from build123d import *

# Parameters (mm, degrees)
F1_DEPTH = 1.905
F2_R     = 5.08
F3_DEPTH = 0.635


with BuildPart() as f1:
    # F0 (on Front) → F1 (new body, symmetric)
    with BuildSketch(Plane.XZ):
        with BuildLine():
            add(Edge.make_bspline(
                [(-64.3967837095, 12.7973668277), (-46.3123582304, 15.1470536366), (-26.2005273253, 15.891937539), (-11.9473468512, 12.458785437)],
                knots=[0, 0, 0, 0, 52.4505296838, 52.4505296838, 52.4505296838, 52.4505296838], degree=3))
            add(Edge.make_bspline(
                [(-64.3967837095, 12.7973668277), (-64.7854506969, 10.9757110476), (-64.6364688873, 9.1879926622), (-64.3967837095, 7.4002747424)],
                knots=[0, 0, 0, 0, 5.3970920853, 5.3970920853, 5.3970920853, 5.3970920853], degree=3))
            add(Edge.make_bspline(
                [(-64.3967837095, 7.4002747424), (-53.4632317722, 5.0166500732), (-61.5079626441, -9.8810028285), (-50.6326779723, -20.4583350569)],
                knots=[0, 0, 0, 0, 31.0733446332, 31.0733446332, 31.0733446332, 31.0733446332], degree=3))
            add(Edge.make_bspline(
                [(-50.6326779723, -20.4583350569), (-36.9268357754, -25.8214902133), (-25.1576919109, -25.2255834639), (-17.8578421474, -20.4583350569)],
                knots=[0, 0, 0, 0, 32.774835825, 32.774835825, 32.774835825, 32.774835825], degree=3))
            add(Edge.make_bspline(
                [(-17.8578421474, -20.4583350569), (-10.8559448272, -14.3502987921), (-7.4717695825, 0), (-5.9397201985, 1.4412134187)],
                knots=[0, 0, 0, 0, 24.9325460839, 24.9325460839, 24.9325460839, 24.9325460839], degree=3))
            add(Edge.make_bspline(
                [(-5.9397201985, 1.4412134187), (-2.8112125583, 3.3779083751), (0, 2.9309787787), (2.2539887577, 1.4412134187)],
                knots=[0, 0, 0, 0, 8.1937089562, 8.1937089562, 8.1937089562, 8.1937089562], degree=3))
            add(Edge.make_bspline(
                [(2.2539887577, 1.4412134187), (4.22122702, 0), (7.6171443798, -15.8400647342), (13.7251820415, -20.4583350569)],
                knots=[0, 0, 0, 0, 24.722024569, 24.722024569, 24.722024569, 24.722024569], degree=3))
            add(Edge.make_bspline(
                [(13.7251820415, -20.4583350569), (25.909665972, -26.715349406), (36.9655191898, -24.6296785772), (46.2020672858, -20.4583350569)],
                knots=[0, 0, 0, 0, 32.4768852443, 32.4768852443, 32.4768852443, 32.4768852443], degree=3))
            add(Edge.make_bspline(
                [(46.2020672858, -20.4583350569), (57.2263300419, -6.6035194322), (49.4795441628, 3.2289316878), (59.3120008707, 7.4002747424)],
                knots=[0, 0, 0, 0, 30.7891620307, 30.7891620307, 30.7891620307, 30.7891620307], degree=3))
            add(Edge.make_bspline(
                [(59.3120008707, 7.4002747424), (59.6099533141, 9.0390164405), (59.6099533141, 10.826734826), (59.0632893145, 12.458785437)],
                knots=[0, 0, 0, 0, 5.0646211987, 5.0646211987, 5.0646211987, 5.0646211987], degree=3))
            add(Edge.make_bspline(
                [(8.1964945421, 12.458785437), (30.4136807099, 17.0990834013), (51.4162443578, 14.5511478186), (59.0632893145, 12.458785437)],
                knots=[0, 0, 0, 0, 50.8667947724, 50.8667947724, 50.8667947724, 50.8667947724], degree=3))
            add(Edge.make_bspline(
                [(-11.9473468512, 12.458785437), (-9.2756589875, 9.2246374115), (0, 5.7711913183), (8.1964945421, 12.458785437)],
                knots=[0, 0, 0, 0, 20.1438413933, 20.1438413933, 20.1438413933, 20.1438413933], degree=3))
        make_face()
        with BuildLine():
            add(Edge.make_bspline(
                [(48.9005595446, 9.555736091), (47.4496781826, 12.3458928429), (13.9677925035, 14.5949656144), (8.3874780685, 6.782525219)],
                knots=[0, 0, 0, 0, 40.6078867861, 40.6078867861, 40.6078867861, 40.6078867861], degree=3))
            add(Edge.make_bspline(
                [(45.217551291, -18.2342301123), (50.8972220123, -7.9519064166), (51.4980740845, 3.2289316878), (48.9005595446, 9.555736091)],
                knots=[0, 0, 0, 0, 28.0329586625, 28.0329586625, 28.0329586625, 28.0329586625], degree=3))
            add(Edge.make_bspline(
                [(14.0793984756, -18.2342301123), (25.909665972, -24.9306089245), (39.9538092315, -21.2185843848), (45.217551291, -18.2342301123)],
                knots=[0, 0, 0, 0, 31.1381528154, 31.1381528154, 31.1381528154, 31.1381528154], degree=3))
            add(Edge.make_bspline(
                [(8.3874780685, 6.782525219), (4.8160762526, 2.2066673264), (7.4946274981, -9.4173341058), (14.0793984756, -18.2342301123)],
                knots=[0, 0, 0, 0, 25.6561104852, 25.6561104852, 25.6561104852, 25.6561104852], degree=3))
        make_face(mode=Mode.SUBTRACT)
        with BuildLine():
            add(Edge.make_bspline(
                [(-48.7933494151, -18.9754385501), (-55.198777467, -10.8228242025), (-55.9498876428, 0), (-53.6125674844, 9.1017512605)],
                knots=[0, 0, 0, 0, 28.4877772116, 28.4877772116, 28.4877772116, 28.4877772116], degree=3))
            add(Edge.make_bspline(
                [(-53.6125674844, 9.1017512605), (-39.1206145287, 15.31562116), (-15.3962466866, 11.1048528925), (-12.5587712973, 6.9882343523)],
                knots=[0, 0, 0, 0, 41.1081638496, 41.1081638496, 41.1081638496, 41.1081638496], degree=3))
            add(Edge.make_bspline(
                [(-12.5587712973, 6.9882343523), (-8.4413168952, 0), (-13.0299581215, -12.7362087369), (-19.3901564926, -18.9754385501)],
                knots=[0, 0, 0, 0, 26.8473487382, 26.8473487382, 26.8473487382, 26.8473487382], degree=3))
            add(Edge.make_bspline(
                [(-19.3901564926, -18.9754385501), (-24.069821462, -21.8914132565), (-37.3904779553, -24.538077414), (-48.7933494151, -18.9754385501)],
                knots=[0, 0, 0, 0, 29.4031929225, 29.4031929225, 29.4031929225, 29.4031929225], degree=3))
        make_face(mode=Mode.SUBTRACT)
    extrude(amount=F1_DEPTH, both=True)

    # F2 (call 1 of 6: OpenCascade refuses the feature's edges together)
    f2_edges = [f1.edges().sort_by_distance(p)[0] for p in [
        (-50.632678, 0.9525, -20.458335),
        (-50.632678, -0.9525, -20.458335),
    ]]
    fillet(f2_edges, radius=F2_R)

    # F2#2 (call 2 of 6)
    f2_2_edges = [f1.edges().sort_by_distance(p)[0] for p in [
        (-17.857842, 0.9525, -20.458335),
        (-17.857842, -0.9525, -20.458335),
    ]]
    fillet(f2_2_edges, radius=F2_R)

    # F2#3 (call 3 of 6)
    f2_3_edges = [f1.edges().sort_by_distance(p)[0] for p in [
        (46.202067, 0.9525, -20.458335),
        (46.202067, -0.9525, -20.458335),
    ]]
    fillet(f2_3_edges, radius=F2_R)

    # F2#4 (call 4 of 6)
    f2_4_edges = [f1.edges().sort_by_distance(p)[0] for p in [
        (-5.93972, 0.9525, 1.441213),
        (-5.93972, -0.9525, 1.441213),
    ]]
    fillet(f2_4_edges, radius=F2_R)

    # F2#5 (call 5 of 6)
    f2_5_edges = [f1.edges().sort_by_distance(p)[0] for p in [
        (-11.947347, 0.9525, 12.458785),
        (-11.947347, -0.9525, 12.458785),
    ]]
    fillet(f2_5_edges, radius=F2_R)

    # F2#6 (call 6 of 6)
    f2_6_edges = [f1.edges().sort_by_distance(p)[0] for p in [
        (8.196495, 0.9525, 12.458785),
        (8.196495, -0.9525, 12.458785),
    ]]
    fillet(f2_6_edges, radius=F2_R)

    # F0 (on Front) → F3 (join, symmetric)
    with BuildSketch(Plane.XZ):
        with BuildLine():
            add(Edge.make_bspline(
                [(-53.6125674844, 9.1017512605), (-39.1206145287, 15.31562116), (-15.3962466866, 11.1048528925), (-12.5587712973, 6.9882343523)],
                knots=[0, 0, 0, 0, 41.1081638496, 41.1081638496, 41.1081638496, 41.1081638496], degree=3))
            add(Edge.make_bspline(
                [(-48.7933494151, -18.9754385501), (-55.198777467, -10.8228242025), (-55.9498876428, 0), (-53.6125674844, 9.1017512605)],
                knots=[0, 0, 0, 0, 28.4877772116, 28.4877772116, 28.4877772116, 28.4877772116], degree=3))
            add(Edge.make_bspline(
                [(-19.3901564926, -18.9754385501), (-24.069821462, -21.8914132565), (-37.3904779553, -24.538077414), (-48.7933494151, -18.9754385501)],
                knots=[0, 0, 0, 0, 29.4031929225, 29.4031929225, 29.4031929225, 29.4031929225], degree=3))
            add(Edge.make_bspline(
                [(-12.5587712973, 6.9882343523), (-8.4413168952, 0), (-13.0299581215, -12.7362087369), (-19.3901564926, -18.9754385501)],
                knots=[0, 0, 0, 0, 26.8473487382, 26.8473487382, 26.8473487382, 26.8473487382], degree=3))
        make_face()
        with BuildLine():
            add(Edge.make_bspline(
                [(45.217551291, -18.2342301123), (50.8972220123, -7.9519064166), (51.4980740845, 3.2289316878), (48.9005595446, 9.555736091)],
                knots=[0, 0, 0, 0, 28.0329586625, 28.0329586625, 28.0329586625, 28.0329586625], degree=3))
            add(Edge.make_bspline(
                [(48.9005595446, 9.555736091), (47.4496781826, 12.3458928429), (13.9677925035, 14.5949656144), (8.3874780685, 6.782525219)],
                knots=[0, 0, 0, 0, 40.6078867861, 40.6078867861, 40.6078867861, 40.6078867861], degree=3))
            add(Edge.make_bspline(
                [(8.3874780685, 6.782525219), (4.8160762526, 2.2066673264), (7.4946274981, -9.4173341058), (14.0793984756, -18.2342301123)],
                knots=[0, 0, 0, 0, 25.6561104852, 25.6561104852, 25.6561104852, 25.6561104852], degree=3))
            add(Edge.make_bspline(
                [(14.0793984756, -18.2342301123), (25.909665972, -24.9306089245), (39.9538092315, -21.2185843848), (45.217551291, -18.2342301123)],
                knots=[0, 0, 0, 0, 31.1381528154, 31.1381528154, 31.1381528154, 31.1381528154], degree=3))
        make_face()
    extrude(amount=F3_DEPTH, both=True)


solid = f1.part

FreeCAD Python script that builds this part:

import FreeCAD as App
import Part
import Sketcher
from FreeCAD import Vector
Q = App.Units.Quantity


def edges_at(feature, points):
    """Names of the edges that pass closest to the given points."""
    edges = feature.Shape.Edges
    near = lambda p: min(range(len(edges)), key=lambda i: edges[i].distToShape(Part.Vertex(*p))[0])
    return sorted({f"Edge{near(p) + 1}" for p in points})

doc = App.newDocument("Part")
body = doc.addObject("PartDesign::Body", "Body")

sketch1 = body.newObject("Sketcher::SketchObject", "Sketch")
sketch1.AttachmentSupport = (doc.getObject("XZ_Plane"), [""])
sketch1.MapMode = "FlatFace"
sketch1.addGeometry([
    Part.BSplineCurve([Vector(-64.396784, 12.797367, 0), Vector(-46.312358, 15.147054, 0), Vector(-26.200527, 15.891938, 0), Vector(-11.947347, 12.458785, 0)], [4, 4], [0, 52.450529684], False, 3, [1, 1, 1, 1], False),
    Part.BSplineCurve([Vector(-64.396784, 12.797367, 0), Vector(-64.785451, 10.975711, 0), Vector(-64.636469, 9.187993, 0), Vector(-64.396784, 7.400275, 0)], [4, 4], [0, 5.397092085], False, 3, [1, 1, 1, 1], False),
    Part.BSplineCurve([Vector(-64.396784, 7.400275, 0), Vector(-53.463232, 5.01665, 0), Vector(-61.507963, -9.881003, 0), Vector(-50.632678, -20.458335, 0)], [4, 4], [0, 31.073344633], False, 3, [1, 1, 1, 1], False),
    Part.BSplineCurve([Vector(-50.632678, -20.458335, 0), Vector(-36.926836, -25.82149, 0), Vector(-25.157692, -25.225583, 0), Vector(-17.857842, -20.458335, 0)], [4, 4], [0, 32.774835825], False, 3, [1, 1, 1, 1], False),
    Part.BSplineCurve([Vector(-17.857842, -20.458335, 0), Vector(-10.855945, -14.350299, 0), Vector(-7.47177, 0, 0), Vector(-5.93972, 1.441213, 0)], [4, 4], [0, 24.932546084], False, 3, [1, 1, 1, 1], False),
    Part.BSplineCurve([Vector(-5.93972, 1.441213, 0), Vector(-2.811213, 3.377908, 0), Vector(0, 2.930979, 0), Vector(2.253989, 1.441213, 0)], [4, 4], [0, 8.193708956], False, 3, [1, 1, 1, 1], False),
    Part.BSplineCurve([Vector(2.253989, 1.441213, 0), Vector(4.221227, 0, 0), Vector(7.617144, -15.840065, 0), Vector(13.725182, -20.458335, 0)], [4, 4], [0, 24.722024569], False, 3, [1, 1, 1, 1], False),
    Part.BSplineCurve([Vector(13.725182, -20.458335, 0), Vector(25.909666, -26.715349, 0), Vector(36.965519, -24.629679, 0), Vector(46.202067, -20.458335, 0)], [4, 4], [0, 32.476885244], False, 3, [1, 1, 1, 1], False),
    Part.BSplineCurve([Vector(46.202067, -20.458335, 0), Vector(57.22633, -6.603519, 0), Vector(49.479544, 3.228932, 0), Vector(59.312001, 7.400275, 0)], [4, 4], [0, 30.789162031], False, 3, [1, 1, 1, 1], False),
    Part.BSplineCurve([Vector(59.312001, 7.400275, 0), Vector(59.609953, 9.039016, 0), Vector(59.609953, 10.826735, 0), Vector(59.063289, 12.458785, 0)], [4, 4], [0, 5.064621199], False, 3, [1, 1, 1, 1], False),
    Part.BSplineCurve([Vector(8.196495, 12.458785, 0), Vector(30.413681, 17.099083, 0), Vector(51.416244, 14.551148, 0), Vector(59.063289, 12.458785, 0)], [4, 4], [0, 50.866794772], False, 3, [1, 1, 1, 1], False),
    Part.BSplineCurve([Vector(-11.947347, 12.458785, 0), Vector(-9.275659, 9.224637, 0), Vector(0, 5.771191, 0), Vector(8.196495, 12.458785, 0)], [4, 4], [0, 20.143841393], False, 3, [1, 1, 1, 1], False),
    Part.BSplineCurve([Vector(45.217551, -18.23423, 0), Vector(50.897222, -7.951906, 0), Vector(51.498074, 3.228932, 0), Vector(48.90056, 9.555736, 0)], [4, 4], [0, 28.032958663], False, 3, [1, 1, 1, 1], False),
    Part.BSplineCurve([Vector(14.079398, -18.23423, 0), Vector(25.909666, -24.930609, 0), Vector(39.953809, -21.218584, 0), Vector(45.217551, -18.23423, 0)], [4, 4], [0, 31.138152815], False, 3, [1, 1, 1, 1], False),
    Part.BSplineCurve([Vector(8.387478, 6.782525, 0), Vector(4.816076, 2.206667, 0), Vector(7.494627, -9.417334, 0), Vector(14.079398, -18.23423, 0)], [4, 4], [0, 25.656110485], False, 3, [1, 1, 1, 1], False),
    Part.BSplineCurve([Vector(48.90056, 9.555736, 0), Vector(47.449678, 12.345893, 0), Vector(13.967793, 14.594966, 0), Vector(8.387478, 6.782525, 0)], [4, 4], [0, 40.607886786], False, 3, [1, 1, 1, 1], False),
    Part.BSplineCurve([Vector(-48.793349, -18.975439, 0), Vector(-55.198777, -10.822824, 0), Vector(-55.949888, 0, 0), Vector(-53.612567, 9.101751, 0)], [4, 4], [0, 28.487777212], False, 3, [1, 1, 1, 1], False),
    Part.BSplineCurve([Vector(-53.612567, 9.101751, 0), Vector(-39.120615, 15.315621, 0), Vector(-15.396247, 11.104853, 0), Vector(-12.558771, 6.988234, 0)], [4, 4], [0, 41.10816385], False, 3, [1, 1, 1, 1], False),
    Part.BSplineCurve([Vector(-12.558771, 6.988234, 0), Vector(-8.441317, 0, 0), Vector(-13.029958, -12.736209, 0), Vector(-19.390156, -18.975439, 0)], [4, 4], [0, 26.847348738], False, 3, [1, 1, 1, 1], False),
    Part.BSplineCurve([Vector(-19.390156, -18.975439, 0), Vector(-24.069821, -21.891413, 0), Vector(-37.390478, -24.538077, 0), Vector(-48.793349, -18.975439, 0)], [4, 4], [0, 29.403192923], False, 3, [1, 1, 1, 1], False),
], False)
sketch1.addConstraint([
    Sketcher.Constraint("Block", 0),
    Sketcher.Constraint("Block", 1),
    Sketcher.Constraint("Block", 2),
    Sketcher.Constraint("Block", 3),
    Sketcher.Constraint("Block", 4),
    Sketcher.Constraint("Block", 5),
    Sketcher.Constraint("Block", 6),
    Sketcher.Constraint("Block", 7),
    Sketcher.Constraint("Block", 8),
    Sketcher.Constraint("Block", 9),
    Sketcher.Constraint("Block", 10),
    Sketcher.Constraint("Block", 11),
    Sketcher.Constraint("Block", 12),
    Sketcher.Constraint("Block", 13),
    Sketcher.Constraint("Block", 14),
    Sketcher.Constraint("Block", 15),
    Sketcher.Constraint("Block", 16),
    Sketcher.Constraint("Block", 17),
    Sketcher.Constraint("Block", 18),
    Sketcher.Constraint("Block", 19),
])
pad1 = body.newObject("PartDesign::Pad", "Pad")
pad1.Profile = sketch1
pad1.Length = Q("0.15 in")
pad1.Midplane = True
doc.recompute()

fillet = body.newObject("PartDesign::Fillet", "Fillet")
fillet.Base = (pad1, edges_at(pad1, [(-50.633, 0.953, -20.458), (-50.633, -0.953, -20.458)]))
fillet.Radius = Q("0.2 in")
doc.recompute()

fillet2 = body.newObject("PartDesign::Fillet", "Fillet001")
fillet2.Base = (fillet, edges_at(fillet, [(-17.858, 0.953, -20.458), (-17.858, -0.953, -20.458)]))
fillet2.Radius = Q("0.2 in")
doc.recompute()

fillet3 = body.newObject("PartDesign::Fillet", "Fillet002")
fillet3.Base = (fillet2, edges_at(fillet2, [(46.202, 0.953, -20.458), (46.202, -0.953, -20.458)]))
fillet3.Radius = Q("0.2 in")
doc.recompute()

fillet4 = body.newObject("PartDesign::Fillet", "Fillet003")
fillet4.Base = (fillet3, edges_at(fillet3, [(-5.94, 0.953, 1.441), (-5.94, -0.953, 1.441)]))
fillet4.Radius = Q("0.2 in")
doc.recompute()

fillet5 = body.newObject("PartDesign::Fillet", "Fillet004")
fillet5.Base = (fillet4, edges_at(fillet4, [(-11.947, 0.953, 12.459), (-11.947, -0.953, 12.459)]))
fillet5.Radius = Q("0.2 in")
doc.recompute()

fillet6 = body.newObject("PartDesign::Fillet", "Fillet005")
fillet6.Base = (fillet5, edges_at(fillet5, [(8.196, 0.953, 12.459), (8.196, -0.953, 12.459)]))
fillet6.Radius = Q("0.2 in")

sketch2 = body.newObject("Sketcher::SketchObject", "Sketch001")
sketch2.AttachmentSupport = (doc.getObject("XZ_Plane"), [""])
sketch2.MapMode = "FlatFace"
sketch2.addGeometry([
    Part.BSplineCurve([Vector(-53.612567, 9.101751, 0), Vector(-39.120615, 15.315621, 0), Vector(-15.396247, 11.104853, 0), Vector(-12.558771, 6.988234, 0)], [4, 4], [0, 41.10816385], False, 3, [1, 1, 1, 1], False),
    Part.BSplineCurve([Vector(-48.793349, -18.975439, 0), Vector(-55.198777, -10.822824, 0), Vector(-55.949888, 0, 0), Vector(-53.612567, 9.101751, 0)], [4, 4], [0, 28.487777212], False, 3, [1, 1, 1, 1], False),
    Part.BSplineCurve([Vector(-19.390156, -18.975439, 0), Vector(-24.069821, -21.891413, 0), Vector(-37.390478, -24.538077, 0), Vector(-48.793349, -18.975439, 0)], [4, 4], [0, 29.403192923], False, 3, [1, 1, 1, 1], False),
    Part.BSplineCurve([Vector(-12.558771, 6.988234, 0), Vector(-8.441317, 0, 0), Vector(-13.029958, -12.736209, 0), Vector(-19.390156, -18.975439, 0)], [4, 4], [0, 26.847348738], False, 3, [1, 1, 1, 1], False),
    Part.BSplineCurve([Vector(45.217551, -18.23423, 0), Vector(50.897222, -7.951906, 0), Vector(51.498074, 3.228932, 0), Vector(48.90056, 9.555736, 0)], [4, 4], [0, 28.032958663], False, 3, [1, 1, 1, 1], False),
    Part.BSplineCurve([Vector(48.90056, 9.555736, 0), Vector(47.449678, 12.345893, 0), Vector(13.967793, 14.594966, 0), Vector(8.387478, 6.782525, 0)], [4, 4], [0, 40.607886786], False, 3, [1, 1, 1, 1], False),
    Part.BSplineCurve([Vector(8.387478, 6.782525, 0), Vector(4.816076, 2.206667, 0), Vector(7.494627, -9.417334, 0), Vector(14.079398, -18.23423, 0)], [4, 4], [0, 25.656110485], False, 3, [1, 1, 1, 1], False),
    Part.BSplineCurve([Vector(14.079398, -18.23423, 0), Vector(25.909666, -24.930609, 0), Vector(39.953809, -21.218584, 0), Vector(45.217551, -18.23423, 0)], [4, 4], [0, 31.138152815], False, 3, [1, 1, 1, 1], False),
], False)
sketch2.addConstraint([
    Sketcher.Constraint("Block", 0),
    Sketcher.Constraint("Block", 1),
    Sketcher.Constraint("Block", 2),
    Sketcher.Constraint("Block", 3),
    Sketcher.Constraint("Block", 4),
    Sketcher.Constraint("Block", 5),
    Sketcher.Constraint("Block", 6),
    Sketcher.Constraint("Block", 7),
])
pad2 = body.newObject("PartDesign::Pad", "Pad001")
pad2.Profile = sketch2
pad2.Length = Q("0.05 in")
pad2.Midplane = True

doc.recompute()
